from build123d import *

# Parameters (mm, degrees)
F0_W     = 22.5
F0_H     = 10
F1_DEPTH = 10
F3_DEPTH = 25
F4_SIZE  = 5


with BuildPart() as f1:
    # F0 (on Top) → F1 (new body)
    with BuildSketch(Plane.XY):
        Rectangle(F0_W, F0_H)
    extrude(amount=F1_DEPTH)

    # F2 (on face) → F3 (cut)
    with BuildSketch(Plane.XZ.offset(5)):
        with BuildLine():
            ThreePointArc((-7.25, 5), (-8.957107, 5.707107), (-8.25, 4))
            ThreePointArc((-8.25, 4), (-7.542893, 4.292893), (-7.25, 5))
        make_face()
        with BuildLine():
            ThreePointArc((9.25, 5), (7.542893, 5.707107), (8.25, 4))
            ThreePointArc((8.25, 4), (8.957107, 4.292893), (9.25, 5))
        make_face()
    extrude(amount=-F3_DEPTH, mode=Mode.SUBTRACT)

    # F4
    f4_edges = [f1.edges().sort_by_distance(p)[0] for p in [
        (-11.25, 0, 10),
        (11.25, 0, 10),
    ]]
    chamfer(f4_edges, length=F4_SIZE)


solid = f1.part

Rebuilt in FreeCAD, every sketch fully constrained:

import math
import FreeCAD as App
import Part
import Sketcher

V = App.Vector


def edges_at(feature, points):
    """Names of the edges that pass closest to the given points."""
    edges = feature.Shape.Edges
    near = lambda p: min(range(len(edges)), key=lambda i: edges[i].distToShape(Part.Vertex(*p))[0])
    return sorted({f"Edge{near(p) + 1}" for p in points})


def add_polygon(sketch, points):
    """Adds a closed chain of lines whose ends are joined by coincident constraints."""
    first, n = sketch.GeometryCount, len(points)
    for a, b in zip(points, points[1:] + points[:1]):
        sketch.addGeometry(Part.LineSegment(App.Vector(*a, 0), App.Vector(*b, 0)), False)
    for i in range(n):
        sketch.addConstraint(Sketcher.Constraint("Coincident", first + i, 2, first + (i + 1) % n, 1))

doc = App.newDocument("Part")
body = doc.addObject("PartDesign::Body", "Body")

# Sketch on XY plane
sketch1 = doc.addObject("Sketcher::SketchObject", "Sketch")
body.addObject(sketch1)
sketch1.AttachmentSupport = (doc.XY_Plane, [""])
sketch1.MapMode = "FlatFace"
add_polygon(sketch1, [(-11, 5), (-11, -5), (11, -5), (11, 5)])  # lines 0-3
sketch1.addConstraint(Sketcher.Constraint("Vertical", 0))
sketch1.addConstraint(Sketcher.Constraint("Horizontal", 1))
sketch1.addConstraint(Sketcher.Constraint("Vertical", 2))
sketch1.addConstraint(Sketcher.Constraint("Horizontal", 3))
sketch1.addConstraint(Sketcher.Constraint("Symmetric", 0, 2, 2, 2, -1, 1))
sketch1.addConstraint(Sketcher.Constraint("DistanceY", 0, 2, 0, 1, 10.0))
sketch1.addConstraint(Sketcher.Constraint("DistanceX", 1, 1, 1, 2, 22.5))
pad1 = doc.addObject("PartDesign::Pad", "Pad")
body.addObject(pad1)
pad1.Profile = sketch1
pad1.Length = 10

# Sketch on XZ plane
sketch2 = doc.addObject("Sketcher::SketchObject", "Sketch001")
body.addObject(sketch2)
sketch2.AttachmentSupport = (doc.XZ_Plane, [""])
sketch2.MapMode = "FlatFace"
sketch2.AttachmentOffset = App.Placement(V(0, 0, 5), App.Rotation())
sketch2.addGeometry(Part.ArcOfCircle(Part.Circle(V(-8.3, 5, 0), V(0, 0, 1), 1), math.radians(0), math.radians(270)), False)
sketch2.addGeometry(Part.ArcOfCircle(Part.Circle(V(-8.2, 5, 0), V(0, 0, 1), 1), math.radians(-90), math.radians(0)), False)
sketch2.addGeometry(Part.ArcOfCircle(Part.Circle(V(8.2, 5, 0), V(0, 0, 1), 1), math.radians(0), math.radians(270)), False)
sketch2.addGeometry(Part.ArcOfCircle(Part.Circle(V(8.3, 5, 0), V(0, 0, 1), 1), math.radians(-90), math.radians(0)), False)
sketch2.addConstraint(Sketcher.Constraint("Tangent", 0, 1, 1, 2))
sketch2.addConstraint(Sketcher.Constraint("Coincident", 1, 1, 0, 2))
sketch2.addConstraint(Sketcher.Constraint("Tangent", 2, 1, 3, 2))
sketch2.addConstraint(Sketcher.Constraint("Coincident", 3, 1, 2, 2))
sketch2.addConstraint(Sketcher.Constraint("Equal", 1, 2))
sketch2.addConstraint(Sketcher.Constraint("Symmetric", 0, 3, 2, 3, -2))
sketch2.addConstraint(Sketcher.Constraint("Horizontal", 3, 3, 0, 1))
sketch2.addConstraint(Sketcher.Constraint("Horizontal", 0, 1, 2, 1))
sketch2.addConstraint(Sketcher.Constraint("Vertical", 0, 3, 1, 1))
sketch2.addConstraint(Sketcher.Constraint("Vertical", 2, 3, 3, 1))
sketch2.addConstraint(Sketcher.Constraint("Radius", 0, 1.0))
sketch2.addConstraint(Sketcher.Constraint("DistanceY", -1, 1, 0, 3, 5.0))
sketch2.addConstraint(Sketcher.Constraint("DistanceX", 1, 3, 2, 3, 16.499999))
pocket1 = doc.addObject("PartDesign::Pocket", "Pocket")
body.addObject(pocket1)
pocket1.Profile = sketch2
pocket1.Length = 25
doc.recompute()

chamfer = doc.addObject("PartDesign::Chamfer", "Chamfer")
body.addObject(chamfer)
chamfer.Base = (pocket1, edges_at(pocket1, [(-11.25, 0, 10), (11.25, 0, 10)]))
chamfer.Size = 5

doc.recompute()
